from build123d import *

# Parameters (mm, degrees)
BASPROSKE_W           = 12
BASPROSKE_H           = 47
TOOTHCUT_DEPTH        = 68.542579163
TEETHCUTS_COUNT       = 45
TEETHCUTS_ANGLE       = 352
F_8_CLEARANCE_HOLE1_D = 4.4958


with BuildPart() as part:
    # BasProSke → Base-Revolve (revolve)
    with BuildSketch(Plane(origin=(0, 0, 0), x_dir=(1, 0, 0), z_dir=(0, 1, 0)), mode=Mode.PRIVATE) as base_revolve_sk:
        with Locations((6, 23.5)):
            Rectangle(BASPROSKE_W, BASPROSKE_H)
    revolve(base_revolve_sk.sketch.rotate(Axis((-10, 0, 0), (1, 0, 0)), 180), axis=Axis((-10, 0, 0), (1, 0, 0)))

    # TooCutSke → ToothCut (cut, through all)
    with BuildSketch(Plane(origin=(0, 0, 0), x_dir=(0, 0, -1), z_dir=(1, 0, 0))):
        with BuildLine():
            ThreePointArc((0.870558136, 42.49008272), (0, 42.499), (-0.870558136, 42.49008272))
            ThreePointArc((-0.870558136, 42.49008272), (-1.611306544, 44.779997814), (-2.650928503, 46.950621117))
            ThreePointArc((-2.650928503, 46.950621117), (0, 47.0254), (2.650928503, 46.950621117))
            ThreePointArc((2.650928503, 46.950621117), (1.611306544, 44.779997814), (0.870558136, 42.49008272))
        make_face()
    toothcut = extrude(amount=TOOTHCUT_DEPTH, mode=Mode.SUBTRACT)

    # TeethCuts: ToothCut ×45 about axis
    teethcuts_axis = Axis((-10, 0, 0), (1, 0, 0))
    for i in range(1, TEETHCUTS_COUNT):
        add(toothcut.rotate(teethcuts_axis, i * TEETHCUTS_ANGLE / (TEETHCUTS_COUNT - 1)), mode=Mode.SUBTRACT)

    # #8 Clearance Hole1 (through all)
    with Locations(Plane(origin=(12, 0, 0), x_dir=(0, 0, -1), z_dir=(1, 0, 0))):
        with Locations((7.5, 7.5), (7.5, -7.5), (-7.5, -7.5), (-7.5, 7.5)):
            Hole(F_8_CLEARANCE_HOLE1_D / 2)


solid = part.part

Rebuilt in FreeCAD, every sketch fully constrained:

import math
import FreeCAD as App
import Part
import Sketcher
from FreeCAD import Vector


def add_polygon(sketch, points):
    """Adds a closed chain of lines whose ends are joined by coincident constraints."""
    first, n = sketch.GeometryCount, len(points)
    for a, b in zip(points, points[1:] + points[:1]):
        sketch.addGeometry(Part.LineSegment(App.Vector(*a, 0), App.Vector(*b, 0)), False)
    for i in range(n):
        sketch.addConstraint(Sketcher.Constraint("Coincident", first + i, 2, first + (i + 1) % n, 1))

doc = App.newDocument("Part")
params = doc.addObject("Spreadsheet::Sheet", "Params")
for row, (alias, value) in enumerate([
    ("sketch1_width", "12 mm"),
    ("sketch1_height", "47 mm"),
    ("revolution_angle", "360 deg"),
    ("sketch2_radius", "18 mm"),
    ("hole_diameter", "4.4958 mm"),
], start=1):
    params.set(f"A{row}", alias)
    params.set(f"B{row}", "=" + value)
    params.setAlias(f"B{row}", alias)

body = doc.addObject("PartDesign::Body", "Body")

# Sketch on XZ plane
sketch1 = body.newObject("Sketcher::SketchObject", "Sketch")
sketch1.AttachmentSupport = (doc.getObject("XZ_Plane"), [""])
sketch1.MapMode = "FlatFace"
add_polygon(sketch1, [(0, -47), (0, 0), (12, 0), (12, -47)])  # lines 0-3
sketch1.addConstraint(Sketcher.Constraint("Vertical", 0))
sketch1.addConstraint(Sketcher.Constraint("Horizontal", 1))
sketch1.addConstraint(Sketcher.Constraint("Vertical", 2))
sketch1.addConstraint(Sketcher.Constraint("Horizontal", 3))
sketch1.addConstraint(Sketcher.Constraint("Coincident", 0, 2, -1, 1))
sketch1.addConstraint(Sketcher.Constraint("DistanceX", 1, 1, 1, 2, 12.0))
sketch1.addConstraint(Sketcher.Constraint("DistanceY", 0, 1, 0, 2, 47.0))
sketch1.setExpression("Constraints[9]", "Params.sketch1_width")
sketch1.setExpression("Constraints[10]", "Params.sketch1_height")
revolution = body.newObject("PartDesign::Revolution", "Revolution")
revolution.Profile = sketch1
revolution.ReferenceAxis = (sketch1, ["H_Axis"])
revolution.setExpression("Angle", "Params.revolution_angle")

# Sketch on YZ plane
sketch2 = body.newObject("Sketcher::SketchObject", "Sketch001")
sketch2.AttachmentSupport = (doc.getObject("YZ_Plane"), [""])
sketch2.MapMode = "FlatFace"
sketch2.addGeometry(Part.ArcOfCircle(Part.Circle(Vector(-0.000001, 0, 0), Vector(0, 0, 1), 42.499001), math.radians(-1.17374), math.radians(1.17374)), False)
sketch2.addGeometry(Part.ArcOfCircle(Part.Circle(Vector(38.10739, -18.328852, 0), Vector(0, 0, 1), 18), math.radians(60.574556), math.radians(75.907804)), False)
sketch2.addGeometry(Part.ArcOfCircle(Part.Circle(Vector(0, 0, 0), Vector(0, 0, 1), 47.0254), math.radians(-3.231606), math.radians(3.231606)), False)
sketch2.addGeometry(Part.ArcOfCircle(Part.Circle(Vector(38.10739, 18.328852, 0), Vector(0, 0, 1), 18), math.radians(-75.907804), math.radians(-60.574556)), False)
sketch2.addConstraint(Sketcher.Constraint("Coincident", 0, 1, 1, 2))
sketch2.addConstraint(Sketcher.Constraint("Coincident", 1, 1, 2, 1))
sketch2.addConstraint(Sketcher.Constraint("Coincident", 2, 2, 3, 2))
sketch2.addConstraint(Sketcher.Constraint("Coincident", 3, 1, 0, 2))
sketch2.addConstraint(Sketcher.Constraint("Coincident", 0, 3, -1, 1))
sketch2.addConstraint(Sketcher.Constraint("Coincident", 2, 3, -1, 1))
sketch2.addConstraint(Sketcher.Constraint("Equal", 1, 3))
sketch2.addConstraint(Sketcher.Constraint("Symmetric", 1, 3, 3, 3, -1))
sketch2.addConstraint(Sketcher.Constraint("Radius", 1, 18.0))
sketch2.addConstraint(Sketcher.Constraint("Radius", 0, 42.499001))
sketch2.addConstraint(Sketcher.Constraint("Radius", 2, 47.0254))
sketch2.addConstraint(Sketcher.Constraint("DistanceX", -1, 1, 1, 3, 38.10739))
sketch2.addConstraint(Sketcher.Constraint("DistanceY", 1, 3, -1, 1, 18.328852))
sketch2.setExpression("Constraints[8]", "Params.sketch2_radius")
pocket1 = body.newObject("PartDesign::Pocket", "Pocket")
pocket1.Profile = sketch2
pocket1.Type = "ThroughAll"
pocket1.Reversed = True
doc.recompute()

polarpattern = body.newObject("PartDesign::PolarPattern", "PolarPattern")
polarpattern.Originals = [pocket1]
polarpattern.Axis = (doc.getObject("X_Axis"), [""])
polarpattern.Angle = 360
polarpattern.Occurrences = 45
body.Tip = polarpattern

# Sketch on YZ plane
sketch3 = body.newObject("Sketcher::SketchObject", "Sketch002")
sketch3.AttachmentSupport = (doc.getObject("YZ_Plane"), [""])
sketch3.MapMode = "FlatFace"
sketch3.AttachmentOffset = App.Placement(Vector(0, 0, 12), App.Rotation())
sketch3.addGeometry(Part.Circle(Vector(7.5, -7.5, 0), Vector(0, 0, 1), 2.2479), False)
sketch3.addGeometry(Part.Circle(Vector(-7.5, -7.5, 0), Vector(0, 0, 1), 2.2479), False)
sketch3.addGeometry(Part.Circle(Vector(-7.5, 7.5, 0), Vector(0, 0, 1), 2.2479), False)
sketch3.addGeometry(Part.Circle(Vector(7.5, 7.5, 0), Vector(0, 0, 1), 2.2479), False)
sketch3.addConstraint(Sketcher.Constraint("Equal", 0, 1))
sketch3.addConstraint(Sketcher.Constraint("Equal", 1, 2))
sketch3.addConstraint(Sketcher.Constraint("Equal", 2, 3))
sketch3.addConstraint(Sketcher.Constraint("Symmetric", 0, 3, 2, 3, -1, 1))
sketch3.addConstraint(Sketcher.Constraint("Symmetric", 1, 3, 3, 3, -1, 1))
sketch3.addConstraint(Sketcher.Constraint("Symmetric", 0, 3, 1, 3, -2))
sketch3.addConstraint(Sketcher.Constraint("DistanceX", 1, 3, 0, 3, 15.0))
sketch3.addConstraint(Sketcher.Constraint("DistanceY", 1, 3, 2, 3, 15.0))
sketch3.addConstraint(Sketcher.Constraint("Diameter", 0, 4.4958))
doc.recompute()
hole = body.newObject("PartDesign::Hole", "Hole")
hole.Profile = sketch3
hole.ThreadType = "None"
hole.setExpression("Diameter", "Params.hole_diameter")
hole.DepthType = "ThroughAll"

doc.recompute()
